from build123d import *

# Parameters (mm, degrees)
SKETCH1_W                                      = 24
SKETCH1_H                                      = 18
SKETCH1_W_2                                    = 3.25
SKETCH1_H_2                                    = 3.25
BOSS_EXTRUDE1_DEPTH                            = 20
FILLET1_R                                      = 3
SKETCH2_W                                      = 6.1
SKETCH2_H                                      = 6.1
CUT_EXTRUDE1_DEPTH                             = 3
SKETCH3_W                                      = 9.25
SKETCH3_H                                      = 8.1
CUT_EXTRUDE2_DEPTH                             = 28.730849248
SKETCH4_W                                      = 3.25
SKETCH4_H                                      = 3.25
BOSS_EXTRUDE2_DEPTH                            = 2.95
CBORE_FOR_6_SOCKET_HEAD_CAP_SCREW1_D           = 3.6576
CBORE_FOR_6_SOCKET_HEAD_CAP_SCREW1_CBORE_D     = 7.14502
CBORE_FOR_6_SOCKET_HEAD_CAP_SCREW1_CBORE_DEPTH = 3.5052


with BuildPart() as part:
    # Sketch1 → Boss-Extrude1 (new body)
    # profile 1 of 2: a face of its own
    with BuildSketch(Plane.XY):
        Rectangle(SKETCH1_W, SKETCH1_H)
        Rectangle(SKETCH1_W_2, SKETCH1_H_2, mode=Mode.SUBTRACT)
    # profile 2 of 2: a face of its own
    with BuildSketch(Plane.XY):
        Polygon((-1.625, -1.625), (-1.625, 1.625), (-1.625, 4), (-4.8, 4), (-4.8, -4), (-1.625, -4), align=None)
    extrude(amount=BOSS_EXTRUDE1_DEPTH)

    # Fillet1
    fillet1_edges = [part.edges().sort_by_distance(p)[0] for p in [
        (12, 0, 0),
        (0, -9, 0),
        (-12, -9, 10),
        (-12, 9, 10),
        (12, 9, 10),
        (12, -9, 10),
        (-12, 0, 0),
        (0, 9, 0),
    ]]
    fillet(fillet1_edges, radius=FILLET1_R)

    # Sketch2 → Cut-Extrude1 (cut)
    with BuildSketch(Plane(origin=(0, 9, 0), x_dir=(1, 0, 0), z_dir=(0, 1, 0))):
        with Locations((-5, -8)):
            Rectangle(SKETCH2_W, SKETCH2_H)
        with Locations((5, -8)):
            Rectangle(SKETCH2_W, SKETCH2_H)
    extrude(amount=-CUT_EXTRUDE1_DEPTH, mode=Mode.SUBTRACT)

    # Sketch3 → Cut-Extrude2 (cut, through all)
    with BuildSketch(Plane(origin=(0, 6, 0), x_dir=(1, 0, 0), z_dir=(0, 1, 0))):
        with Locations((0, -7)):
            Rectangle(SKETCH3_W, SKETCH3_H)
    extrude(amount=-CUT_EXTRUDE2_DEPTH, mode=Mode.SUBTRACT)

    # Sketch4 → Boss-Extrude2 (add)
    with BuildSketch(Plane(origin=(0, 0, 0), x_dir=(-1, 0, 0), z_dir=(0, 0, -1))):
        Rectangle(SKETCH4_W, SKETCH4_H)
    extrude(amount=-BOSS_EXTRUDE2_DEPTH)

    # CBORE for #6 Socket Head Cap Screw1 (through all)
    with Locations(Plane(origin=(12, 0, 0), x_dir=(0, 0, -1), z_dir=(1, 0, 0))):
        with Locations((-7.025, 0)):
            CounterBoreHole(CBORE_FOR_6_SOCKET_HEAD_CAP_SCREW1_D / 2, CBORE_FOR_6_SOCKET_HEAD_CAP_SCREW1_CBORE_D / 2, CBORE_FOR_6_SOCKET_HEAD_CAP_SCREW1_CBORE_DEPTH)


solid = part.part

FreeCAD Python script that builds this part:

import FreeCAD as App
import Part
import Sketcher

V = App.Vector
Q = App.Units.Quantity


def edges_at(feature, points):
    """Names of the edges that pass closest to the given points."""
    edges = feature.Shape.Edges
    near = lambda p: min(range(len(edges)), key=lambda i: edges[i].distToShape(Part.Vertex(*p))[0])
    return sorted({f"Edge{near(p) + 1}" for p in points})

doc = App.newDocument("Part")
body = doc.addObject("PartDesign::Body", "Body")

# Sketch on XY plane
sketch1 = body.newObject("Sketcher::SketchObject", "Sketch")
sketch1.AttachmentSupport = (doc.getObject("XY_Plane"), [""])
sketch1.MapMode = "FlatFace"
sketch1.addGeometry(Part.LineSegment(V(-12, 9, 0), V(-12, -9, 0)), False)
sketch1.addGeometry(Part.LineSegment(V(-12, -9, 0), V(12, -9, 0)), False)
sketch1.addGeometry(Part.LineSegment(V(12, -9, 0), V(12, 9, 0)), False)
sketch1.addGeometry(Part.LineSegment(V(12, 9, 0), V(-12, 9, 0)), False)
sketch1.addGeometry(Part.LineSegment(V(1.6, -1.6, 0), V(-1.6, -1.6, 0)), False)
sketch1.addGeometry(Part.LineSegment(V(-1.6, -1.6, 0), V(-1.6, 1.6, 0)), False)
sketch1.addGeometry(Part.LineSegment(V(-1.6, 1.6, 0), V(1.6, 1.6, 0)), False)
sketch1.addGeometry(Part.LineSegment(V(1.6, 1.6, 0), V(1.6, -1.6, 0)), False)
sketch1.addConstraint(Sketcher.Constraint("Coincident", 0, 2, 1, 1))
sketch1.addConstraint(Sketcher.Constraint("Coincident", 1, 2, 2, 1))
sketch1.addConstraint(Sketcher.Constraint("Coincident", 2, 2, 3, 1))
sketch1.addConstraint(Sketcher.Constraint("Coincident", 3, 2, 0, 1))
sketch1.addConstraint(Sketcher.Constraint("Coincident", 4, 2, 5, 1))
sketch1.addConstraint(Sketcher.Constraint("Coincident", 5, 2, 6, 1))
sketch1.addConstraint(Sketcher.Constraint("Coincident", 6, 2, 7, 1))
sketch1.addConstraint(Sketcher.Constraint("Coincident", 7, 2, 4, 1))
sketch1.addConstraint(Sketcher.Constraint("Vertical", 0))
sketch1.addConstraint(Sketcher.Constraint("Horizontal", 1))
sketch1.addConstraint(Sketcher.Constraint("Vertical", 2))
sketch1.addConstraint(Sketcher.Constraint("Horizontal", 3))
sketch1.addConstraint(Sketcher.Constraint("Horizontal", 4))
sketch1.addConstraint(Sketcher.Constraint("Vertical", 5))
sketch1.addConstraint(Sketcher.Constraint("Horizontal", 6))
sketch1.addConstraint(Sketcher.Constraint("Vertical", 7))
sketch1.addConstraint(Sketcher.Constraint("Symmetric", 0, 2, 2, 2, -1, 1))
sketch1.addConstraint(Sketcher.Constraint("Symmetric", 4, 2, 6, 2, -1, 1))
sketch1.addConstraint(Sketcher.Constraint("Equal", 6, 5))
sketch1.addConstraint(Sketcher.Constraint("DistanceX", 1, 1, 1, 2, Q("24 mm")))
sketch1.addConstraint(Sketcher.Constraint("DistanceY", 0, 2, 0, 1, Q("18 mm")))
sketch1.addConstraint(Sketcher.Constraint("DistanceX", 4, 2, 4, 1, Q("3.25 mm")))
pad1 = body.newObject("PartDesign::Pad", "Pad")
pad1.Profile = sketch1
pad1.Length = 20
doc.recompute()

fillet = body.newObject("PartDesign::Fillet", "Fillet")
fillet.Base = (pad1, edges_at(pad1, [
    (12, 0, 0),
    (0, -9, 0),
    (-12, -9, 10),
    (-12, 9, 10),
    (12, 9, 10),
    (12, -9, 10),
    (-12, 0, 0),
    (0, 9, 0),
]))
fillet.Radius = 3

# Sketch on XZ plane
sketch2 = body.newObject("Sketcher::SketchObject", "Sketch001")
sketch2.AttachmentSupport = (doc.getObject("XZ_Plane"), [""])
sketch2.MapMode = "FlatFace"
sketch2.AttachmentOffset = App.Placement(V(0, 0, -9), App.Rotation())
sketch2.addGeometry(Part.LineSegment(V(-8, 5, 0), V(-8, 11, 0)), False)
sketch2.addGeometry(Part.LineSegment(V(-8, 11, 0), V(-2, 11, 0)), False)
sketch2.addGeometry(Part.LineSegment(V(-2, 11, 0), V(-2, 5, 0)), False)
sketch2.addGeometry(Part.LineSegment(V(-2, 5, 0), V(-8, 5, 0)), False)
sketch2.addGeometry(Part.LineSegment(V(2, 5, 0), V(2, 11, 0)), False)
sketch2.addGeometry(Part.LineSegment(V(2, 11, 0), V(8, 11, 0)), False)
sketch2.addGeometry(Part.LineSegment(V(8, 11, 0), V(8, 5, 0)), False)
sketch2.addGeometry(Part.LineSegment(V(8, 5, 0), V(2, 5, 0)), False)
sketch2.addConstraint(Sketcher.Constraint("Coincident", 0, 2, 1, 1))
sketch2.addConstraint(Sketcher.Constraint("Coincident", 1, 2, 2, 1))
sketch2.addConstraint(Sketcher.Constraint("Coincident", 2, 2, 3, 1))
sketch2.addConstraint(Sketcher.Constraint("Coincident", 3, 2, 0, 1))
sketch2.addConstraint(Sketcher.Constraint("Coincident", 4, 2, 5, 1))
sketch2.addConstraint(Sketcher.Constraint("Coincident", 5, 2, 6, 1))
sketch2.addConstraint(Sketcher.Constraint("Coincident", 6, 2, 7, 1))
sketch2.addConstraint(Sketcher.Constraint("Coincident", 7, 2, 4, 1))
sketch2.addConstraint(Sketcher.Constraint("Vertical", 0))
sketch2.addConstraint(Sketcher.Constraint("Horizontal", 1))
sketch2.addConstraint(Sketcher.Constraint("Vertical", 2))
sketch2.addConstraint(Sketcher.Constraint("Horizontal", 3))
sketch2.addConstraint(Sketcher.Constraint("Vertical", 4))
sketch2.addConstraint(Sketcher.Constraint("Horizontal", 5))
sketch2.addConstraint(Sketcher.Constraint("Vertical", 6))
sketch2.addConstraint(Sketcher.Constraint("Horizontal", 7))
sketch2.addConstraint(Sketcher.Constraint("Symmetric", 1, 2, 4, 2, -2))
sketch2.addConstraint(Sketcher.Constraint("Symmetric", 3, 2, 6, 2, -2))
sketch2.addConstraint(Sketcher.Constraint("Equal", 7, 0))
sketch2.addConstraint(Sketcher.Constraint("DistanceX", 1, 1, 1, 2, Q("6.1 mm")))
sketch2.addConstraint(Sketcher.Constraint("DistanceX", 0, 2, 4, 2, Q("10 mm")))
sketch2.addConstraint(Sketcher.Constraint("DistanceY", -1, 1, 0, 2, Q("11.05 mm")))
pocket1 = body.newObject("PartDesign::Pocket", "Pocket")
pocket1.Profile = sketch2
pocket1.Length = 3
pocket1.Reversed = True

# Sketch on XZ plane
sketch3 = body.newObject("Sketcher::SketchObject", "Sketch002")
sketch3.AttachmentSupport = (doc.getObject("XZ_Plane"), [""])
sketch3.MapMode = "FlatFace"
sketch3.AttachmentOffset = App.Placement(V(0, 0, -6), App.Rotation())
sketch3.addGeometry(Part.LineSegment(V(-5, 3, 0), V(-5, 11, 0)), False)
sketch3.addGeometry(Part.LineSegment(V(-5, 11, 0), V(5, 11, 0)), False)
sketch3.addGeometry(Part.LineSegment(V(5, 11, 0), V(5, 3, 0)), False)
sketch3.addGeometry(Part.LineSegment(V(5, 3, 0), V(-5, 3, 0)), False)
sketch3.addConstraint(Sketcher.Constraint("Coincident", 0, 2, 1, 1))
sketch3.addConstraint(Sketcher.Constraint("Coincident", 1, 2, 2, 1))
sketch3.addConstraint(Sketcher.Constraint("Coincident", 2, 2, 3, 1))
sketch3.addConstraint(Sketcher.Constraint("Coincident", 3, 2, 0, 1))
sketch3.addConstraint(Sketcher.Constraint("Vertical", 0))
sketch3.addConstraint(Sketcher.Constraint("Horizontal", 1))
sketch3.addConstraint(Sketcher.Constraint("Vertical", 2))
sketch3.addConstraint(Sketcher.Constraint("Horizontal", 3))
sketch3.addConstraint(Sketcher.Constraint("DistanceY", 0, 1, 0, 2, Q("8.1 mm")))
sketch3.addConstraint(Sketcher.Constraint("DistanceX", 1, 1, 1, 2, Q("9.25 mm")))
sketch3.addConstraint(Sketcher.Constraint("DistanceY", -1, 1, 0, 2, Q("11.05 mm")))
sketch3.addConstraint(Sketcher.Constraint("DistanceX", 0, 2, -1, 1, Q("4.625 mm")))
pocket2 = body.newObject("PartDesign::Pocket", "Pocket001")
pocket2.Profile = sketch3
pocket2.Type = "ThroughAll"
pocket2.Reversed = True

# Sketch on XY plane
sketch4 = body.newObject("Sketcher::SketchObject", "Sketch003")
sketch4.AttachmentSupport = (doc.getObject("XY_Plane"), [""])
sketch4.MapMode = "FlatFace"
sketch4.addGeometry(Part.LineSegment(V(1.6, 1.6, 0), V(1.6, -1.6, 0)), False)
sketch4.addGeometry(Part.LineSegment(V(1.6, -1.6, 0), V(-1.6, -1.6, 0)), False)
sketch4.addGeometry(Part.LineSegment(V(-1.6, -1.6, 0), V(-1.6, 1.6, 0)), False)
sketch4.addGeometry(Part.LineSegment(V(-1.6, 1.6, 0), V(1.6, 1.6, 0)), False)
sketch4.addConstraint(Sketcher.Constraint("Coincident", 0, 2, 1, 1))
sketch4.addConstraint(Sketcher.Constraint("Coincident", 1, 2, 2, 1))
sketch4.addConstraint(Sketcher.Constraint("Coincident", 2, 2, 3, 1))
sketch4.addConstraint(Sketcher.Constraint("Coincident", 3, 2, 0, 1))
sketch4.addConstraint(Sketcher.Constraint("Vertical", 0))
sketch4.addConstraint(Sketcher.Constraint("Horizontal", 1))
sketch4.addConstraint(Sketcher.Constraint("Vertical", 2))
sketch4.addConstraint(Sketcher.Constraint("Horizontal", 3))
sketch4.addConstraint(Sketcher.Constraint("Symmetric", 0, 2, 2, 2, -1, 1))
sketch4.addConstraint(Sketcher.Constraint("Equal", 3, 0))
sketch4.addConstraint(Sketcher.Constraint("DistanceX", 1, 2, 1, 1, Q("3.25 mm")))
pad2 = body.newObject("PartDesign::Pad", "Pad001")
pad2.Profile = sketch4
pad2.Length = 2.95

# Sketch on YZ plane
sketch5 = body.newObject("Sketcher::SketchObject", "Sketch004")
sketch5.AttachmentSupport = (doc.getObject("YZ_Plane"), [""])
sketch5.MapMode = "FlatFace"
sketch5.AttachmentOffset = App.Placement(V(0, 0, 12), App.Rotation())
sketch5.addGeometry(Part.Circle(V(0, 7, 0), V(0, 0, 1), 1.8), False)
sketch5.addConstraint(Sketcher.Constraint("PointOnObject", 0, 3, -2))
sketch5.addConstraint(Sketcher.Constraint("Diameter", 0, Q("3.6576 mm")))
sketch5.addConstraint(Sketcher.Constraint("DistanceY", -1, 1, 0, 3, Q("7.025 mm")))
doc.recompute()
hole = body.newObject("PartDesign::Hole", "Hole")
hole.Profile = sketch5
hole.ThreadType = "None"
hole.Diameter = 3.6576
hole.DepthType = "ThroughAll"
hole.HoleCutType = "Counterbore"
hole.HoleCutDiameter = 7.14502
hole.HoleCutDepth = 3.5052

doc.recompute()
